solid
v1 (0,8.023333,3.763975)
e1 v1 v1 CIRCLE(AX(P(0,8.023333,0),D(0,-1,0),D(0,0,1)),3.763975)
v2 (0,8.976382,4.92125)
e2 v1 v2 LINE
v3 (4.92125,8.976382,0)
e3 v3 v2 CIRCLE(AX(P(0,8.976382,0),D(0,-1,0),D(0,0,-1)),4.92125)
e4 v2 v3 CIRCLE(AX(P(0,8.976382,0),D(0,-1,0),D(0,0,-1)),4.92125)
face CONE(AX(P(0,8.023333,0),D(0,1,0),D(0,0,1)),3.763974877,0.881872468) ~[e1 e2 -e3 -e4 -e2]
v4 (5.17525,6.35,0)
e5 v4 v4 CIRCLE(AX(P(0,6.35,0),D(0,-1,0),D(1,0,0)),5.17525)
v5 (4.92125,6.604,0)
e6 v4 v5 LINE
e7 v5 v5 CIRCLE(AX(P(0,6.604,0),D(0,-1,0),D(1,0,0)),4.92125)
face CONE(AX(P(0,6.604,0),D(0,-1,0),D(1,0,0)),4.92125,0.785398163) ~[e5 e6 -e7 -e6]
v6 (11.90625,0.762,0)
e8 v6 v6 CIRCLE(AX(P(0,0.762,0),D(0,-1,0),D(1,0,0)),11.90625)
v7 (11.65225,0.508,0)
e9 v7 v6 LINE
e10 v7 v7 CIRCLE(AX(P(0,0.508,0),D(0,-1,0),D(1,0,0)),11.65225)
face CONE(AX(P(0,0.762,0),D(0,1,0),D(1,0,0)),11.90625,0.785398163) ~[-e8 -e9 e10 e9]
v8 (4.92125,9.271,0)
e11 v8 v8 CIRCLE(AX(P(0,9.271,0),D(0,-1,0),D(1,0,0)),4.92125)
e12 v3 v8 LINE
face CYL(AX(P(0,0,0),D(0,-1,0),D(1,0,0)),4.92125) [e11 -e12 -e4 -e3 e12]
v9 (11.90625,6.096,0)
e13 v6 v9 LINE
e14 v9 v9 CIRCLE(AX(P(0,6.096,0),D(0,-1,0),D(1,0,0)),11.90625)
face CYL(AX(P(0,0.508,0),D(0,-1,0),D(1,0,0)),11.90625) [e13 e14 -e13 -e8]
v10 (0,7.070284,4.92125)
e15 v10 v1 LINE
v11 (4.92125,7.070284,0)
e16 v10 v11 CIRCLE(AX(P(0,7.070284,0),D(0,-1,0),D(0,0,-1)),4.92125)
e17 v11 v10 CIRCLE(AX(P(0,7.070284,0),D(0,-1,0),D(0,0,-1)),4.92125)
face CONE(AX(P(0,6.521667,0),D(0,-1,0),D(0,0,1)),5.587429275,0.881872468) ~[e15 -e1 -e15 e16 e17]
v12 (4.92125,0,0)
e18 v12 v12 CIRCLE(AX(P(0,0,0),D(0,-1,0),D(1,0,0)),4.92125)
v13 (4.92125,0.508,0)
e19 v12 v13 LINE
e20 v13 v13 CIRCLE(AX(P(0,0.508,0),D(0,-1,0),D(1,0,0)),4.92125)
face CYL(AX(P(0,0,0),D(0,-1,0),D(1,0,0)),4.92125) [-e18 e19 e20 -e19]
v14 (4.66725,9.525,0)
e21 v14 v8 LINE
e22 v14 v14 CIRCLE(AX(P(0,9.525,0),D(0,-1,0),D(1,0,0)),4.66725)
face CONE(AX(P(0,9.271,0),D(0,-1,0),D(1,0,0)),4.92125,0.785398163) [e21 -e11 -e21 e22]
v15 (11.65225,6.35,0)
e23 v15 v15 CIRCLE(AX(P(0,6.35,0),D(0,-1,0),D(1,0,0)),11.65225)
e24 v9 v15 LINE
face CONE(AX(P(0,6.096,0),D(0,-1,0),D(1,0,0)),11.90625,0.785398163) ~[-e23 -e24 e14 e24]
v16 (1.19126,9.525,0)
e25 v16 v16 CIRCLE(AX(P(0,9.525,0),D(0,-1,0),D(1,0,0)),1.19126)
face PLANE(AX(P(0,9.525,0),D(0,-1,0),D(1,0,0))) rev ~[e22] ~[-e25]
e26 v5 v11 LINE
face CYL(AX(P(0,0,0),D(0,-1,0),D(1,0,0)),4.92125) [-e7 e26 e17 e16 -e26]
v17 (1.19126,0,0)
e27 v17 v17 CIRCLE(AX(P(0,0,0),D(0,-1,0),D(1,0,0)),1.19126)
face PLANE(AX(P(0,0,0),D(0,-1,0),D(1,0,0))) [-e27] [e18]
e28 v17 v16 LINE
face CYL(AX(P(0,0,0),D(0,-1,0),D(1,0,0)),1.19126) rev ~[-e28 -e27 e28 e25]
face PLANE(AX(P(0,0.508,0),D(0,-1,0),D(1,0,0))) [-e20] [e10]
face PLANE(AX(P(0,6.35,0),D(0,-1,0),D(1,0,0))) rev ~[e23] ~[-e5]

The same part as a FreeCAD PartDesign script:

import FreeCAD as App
import Part
import Sketcher
from FreeCAD import Vector
Q = App.Units.Quantity


def edges_at(feature, points):
    """Names of the edges that pass closest to the given points."""
    edges = feature.Shape.Edges
    near = lambda p: min(range(len(edges)), key=lambda i: edges[i].distToShape(Part.Vertex(*p))[0])
    return sorted({f"Edge{near(p) + 1}" for p in points})


def add_polygon(sketch, points):
    """Adds a closed chain of lines whose ends are joined by coincident constraints."""
    first, n = sketch.GeometryCount, len(points)
    for a, b in zip(points, points[1:] + points[:1]):
        sketch.addGeometry(Part.LineSegment(App.Vector(*a, 0), App.Vector(*b, 0)), False)
    for i in range(n):
        sketch.addConstraint(Sketcher.Constraint("Coincident", first + i, 2, first + (i + 1) % n, 1))

doc = App.newDocument("Part")
body = doc.addObject("PartDesign::Body", "Body")

# Sketch on XZ plane
sketch1 = doc.addObject("Sketcher::SketchObject", "Sketch")
body.addObject(sketch1)
sketch1.AttachmentSupport = (doc.XZ_Plane, [""])
sketch1.MapMode = "FlatFace"
sketch1.AttachmentOffset = App.Placement(Vector(0, 0, -0.02 * 25.4), App.Rotation())
sketch1.addGeometry(Part.Circle(Vector(0, 0, 0), Vector(0, 0, 1), 11.9), False)
sketch1.addGeometry(Part.Circle(Vector(0, 0, 0), Vector(0, 0, 1), 4.9), False)
sketch1.addConstraint(Sketcher.Constraint("Coincident", 0, 3, -1, 1))
sketch1.addConstraint(Sketcher.Constraint("Coincident", 1, 3, -1, 1))
sketch1.addConstraint(Sketcher.Constraint("Diameter", 0, Q("0.9375 in")))
sketch1.addConstraint(Sketcher.Constraint("Diameter", 1, Q("0.3875 in")))
pad1 = doc.addObject("PartDesign::Pad", "Pad")
body.addObject(pad1)
pad1.Profile = sketch1
pad1.Length = Q("0.23 in")
pad1.Reversed = True

# Sketch on XZ plane
sketch2 = doc.addObject("Sketcher::SketchObject", "Sketch001")
body.addObject(sketch2)
sketch2.AttachmentSupport = (doc.XZ_Plane, [""])
sketch2.MapMode = "FlatFace"
sketch2.addGeometry(Part.Circle(Vector(0, 0, 0), Vector(0, 0, 1), 4.9), False)
sketch2.addGeometry(Part.Circle(Vector(0, 0, 0), Vector(0, 0, 1), 1.2), False)
sketch2.addConstraint(Sketcher.Constraint("Coincident", 0, 3, -1, 1))
sketch2.addConstraint(Sketcher.Constraint("Coincident", 1, 3, -1, 1))
sketch2.addConstraint(Sketcher.Constraint("Diameter", 0, Q("0.3875 in")))
sketch2.addConstraint(Sketcher.Constraint("Diameter", 1, Q("0.0938 in")))
pad2 = doc.addObject("PartDesign::Pad", "Pad001")
body.addObject(pad2)
pad2.Profile = sketch2
pad2.Length = Q("0.375 in")
pad2.Reversed = True
doc.recompute()

chamfer = doc.addObject("PartDesign::Chamfer", "Chamfer")
body.addObject(chamfer)
chamfer.Base = (pad2, edges_at(pad2, [
    (-11.906, 6.35, 0),
    (-11.906, 0.508, 0),
    (-4.921, 9.525, 0),
    (-4.921, 6.35, 0),
]))
chamfer.Size = Q("0.01 in")

# Sketch on YZ plane
sketch3 = doc.addObject("Sketcher::SketchObject", "Sketch002")
body.addObject(sketch3)
sketch3.AttachmentSupport = (doc.YZ_Plane, [""])
sketch3.MapMode = "FlatFace"
add_polygon(sketch3, [(6.5, 5.6), (8, 3.8), (9.5, 5.6)])  # lines 0-2
sketch3.addConstraint(Sketcher.Constraint("Horizontal", 2))
sketch3.addConstraint(Sketcher.Constraint("Equal", 0, 1))
sketch3.addConstraint(Sketcher.Constraint("Distance", 0, Q("0.093 in")))
sketch3.addConstraint(Sketcher.Constraint("DistanceX", -1, 1, 1, 2, Q("0.375 in")))
sketch3.addConstraint(Sketcher.Constraint("DistanceX", 2, 2, 2, 1, Q("3.003333 mm")))
sketch3.addConstraint(Sketcher.Constraint("DistanceY", -1, 1, 1, 2, Q("5.587429 mm")))
groove = doc.addObject("PartDesign::Groove", "Groove")
body.addObject(groove)
groove.Profile = sketch3
groove.ReferenceAxis = (sketch3, ["H_Axis"])
groove.Angle = 360

doc.recompute()
